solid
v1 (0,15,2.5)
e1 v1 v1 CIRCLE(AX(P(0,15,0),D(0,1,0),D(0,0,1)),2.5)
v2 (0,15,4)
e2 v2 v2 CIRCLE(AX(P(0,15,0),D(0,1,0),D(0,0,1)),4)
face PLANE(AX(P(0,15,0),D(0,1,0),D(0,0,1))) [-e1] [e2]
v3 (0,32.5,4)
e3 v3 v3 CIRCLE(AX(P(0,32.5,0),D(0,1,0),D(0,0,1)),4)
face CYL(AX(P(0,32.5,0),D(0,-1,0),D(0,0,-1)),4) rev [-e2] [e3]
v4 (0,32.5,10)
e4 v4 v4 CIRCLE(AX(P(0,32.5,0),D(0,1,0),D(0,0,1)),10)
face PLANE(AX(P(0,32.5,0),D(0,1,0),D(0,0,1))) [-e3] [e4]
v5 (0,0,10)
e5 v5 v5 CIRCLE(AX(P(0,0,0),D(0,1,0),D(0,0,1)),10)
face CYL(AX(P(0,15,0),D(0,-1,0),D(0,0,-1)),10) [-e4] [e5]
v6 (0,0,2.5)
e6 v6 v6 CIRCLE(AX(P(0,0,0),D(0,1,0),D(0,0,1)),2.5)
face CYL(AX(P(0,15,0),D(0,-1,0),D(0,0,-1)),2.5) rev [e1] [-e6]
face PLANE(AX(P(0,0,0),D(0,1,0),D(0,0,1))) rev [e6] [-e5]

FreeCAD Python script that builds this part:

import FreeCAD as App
import Part
import Sketcher
Q = App.Units.Quantity

doc = App.newDocument("Part")
body = doc.addObject("PartDesign::Body", "Body")

sketch1 = body.newObject("Sketcher::SketchObject", "Sketch")
sketch1.AttachmentSupport = (doc.getObject("XZ_Plane"), [""])
sketch1.MapMode = "FlatFace"
sketch1.addGeometry([
    Part.Circle(App.Vector(0, 0, 0), App.Vector(0, 0, 1), 10),
    Part.Circle(App.Vector(0, 0, 0), App.Vector(0, 0, 1), 2.5),
], False)
sketch1.addConstraint([
    Sketcher.Constraint("Coincident", 0, 3, -1, 1),
    Sketcher.Constraint("Coincident", 1, 3, -1, 1),
    Sketcher.Constraint("Diameter", 0, Q("20 mm")),
    Sketcher.Constraint("Diameter", 1, Q("5 mm")),
])
pad1 = body.newObject("PartDesign::Pad", "Pad")
pad1.Profile = sketch1
pad1.Length = 15
pad1.Reversed = True

sketch2 = body.newObject("Sketcher::SketchObject", "Sketch001")
sketch2.AttachmentSupport = (doc.getObject("XZ_Plane"), [""])
sketch2.MapMode = "FlatFace"
sketch2.AttachmentOffset = App.Placement(App.Vector(0, 0, -15), App.Rotation())
sketch2.addGeometry([
    Part.Circle(App.Vector(0, 0, 0), App.Vector(0, 0, 1), 10),
    Part.Circle(App.Vector(0, 0, 0), App.Vector(0, 0, 1), 4),
], False)
sketch2.addConstraint([
    Sketcher.Constraint("Coincident", 0, 3, -1, 1),
    Sketcher.Constraint("Coincident", 1, 3, -1, 1),
    Sketcher.Constraint("Diameter", 0, Q("20 mm")),
    Sketcher.Constraint("Diameter", 1, Q("8 mm")),
])
pad2 = body.newObject("PartDesign::Pad", "Pad001")
pad2.Profile = sketch2
pad2.Length = 17.5
pad2.Reversed = True

doc.recompute()
